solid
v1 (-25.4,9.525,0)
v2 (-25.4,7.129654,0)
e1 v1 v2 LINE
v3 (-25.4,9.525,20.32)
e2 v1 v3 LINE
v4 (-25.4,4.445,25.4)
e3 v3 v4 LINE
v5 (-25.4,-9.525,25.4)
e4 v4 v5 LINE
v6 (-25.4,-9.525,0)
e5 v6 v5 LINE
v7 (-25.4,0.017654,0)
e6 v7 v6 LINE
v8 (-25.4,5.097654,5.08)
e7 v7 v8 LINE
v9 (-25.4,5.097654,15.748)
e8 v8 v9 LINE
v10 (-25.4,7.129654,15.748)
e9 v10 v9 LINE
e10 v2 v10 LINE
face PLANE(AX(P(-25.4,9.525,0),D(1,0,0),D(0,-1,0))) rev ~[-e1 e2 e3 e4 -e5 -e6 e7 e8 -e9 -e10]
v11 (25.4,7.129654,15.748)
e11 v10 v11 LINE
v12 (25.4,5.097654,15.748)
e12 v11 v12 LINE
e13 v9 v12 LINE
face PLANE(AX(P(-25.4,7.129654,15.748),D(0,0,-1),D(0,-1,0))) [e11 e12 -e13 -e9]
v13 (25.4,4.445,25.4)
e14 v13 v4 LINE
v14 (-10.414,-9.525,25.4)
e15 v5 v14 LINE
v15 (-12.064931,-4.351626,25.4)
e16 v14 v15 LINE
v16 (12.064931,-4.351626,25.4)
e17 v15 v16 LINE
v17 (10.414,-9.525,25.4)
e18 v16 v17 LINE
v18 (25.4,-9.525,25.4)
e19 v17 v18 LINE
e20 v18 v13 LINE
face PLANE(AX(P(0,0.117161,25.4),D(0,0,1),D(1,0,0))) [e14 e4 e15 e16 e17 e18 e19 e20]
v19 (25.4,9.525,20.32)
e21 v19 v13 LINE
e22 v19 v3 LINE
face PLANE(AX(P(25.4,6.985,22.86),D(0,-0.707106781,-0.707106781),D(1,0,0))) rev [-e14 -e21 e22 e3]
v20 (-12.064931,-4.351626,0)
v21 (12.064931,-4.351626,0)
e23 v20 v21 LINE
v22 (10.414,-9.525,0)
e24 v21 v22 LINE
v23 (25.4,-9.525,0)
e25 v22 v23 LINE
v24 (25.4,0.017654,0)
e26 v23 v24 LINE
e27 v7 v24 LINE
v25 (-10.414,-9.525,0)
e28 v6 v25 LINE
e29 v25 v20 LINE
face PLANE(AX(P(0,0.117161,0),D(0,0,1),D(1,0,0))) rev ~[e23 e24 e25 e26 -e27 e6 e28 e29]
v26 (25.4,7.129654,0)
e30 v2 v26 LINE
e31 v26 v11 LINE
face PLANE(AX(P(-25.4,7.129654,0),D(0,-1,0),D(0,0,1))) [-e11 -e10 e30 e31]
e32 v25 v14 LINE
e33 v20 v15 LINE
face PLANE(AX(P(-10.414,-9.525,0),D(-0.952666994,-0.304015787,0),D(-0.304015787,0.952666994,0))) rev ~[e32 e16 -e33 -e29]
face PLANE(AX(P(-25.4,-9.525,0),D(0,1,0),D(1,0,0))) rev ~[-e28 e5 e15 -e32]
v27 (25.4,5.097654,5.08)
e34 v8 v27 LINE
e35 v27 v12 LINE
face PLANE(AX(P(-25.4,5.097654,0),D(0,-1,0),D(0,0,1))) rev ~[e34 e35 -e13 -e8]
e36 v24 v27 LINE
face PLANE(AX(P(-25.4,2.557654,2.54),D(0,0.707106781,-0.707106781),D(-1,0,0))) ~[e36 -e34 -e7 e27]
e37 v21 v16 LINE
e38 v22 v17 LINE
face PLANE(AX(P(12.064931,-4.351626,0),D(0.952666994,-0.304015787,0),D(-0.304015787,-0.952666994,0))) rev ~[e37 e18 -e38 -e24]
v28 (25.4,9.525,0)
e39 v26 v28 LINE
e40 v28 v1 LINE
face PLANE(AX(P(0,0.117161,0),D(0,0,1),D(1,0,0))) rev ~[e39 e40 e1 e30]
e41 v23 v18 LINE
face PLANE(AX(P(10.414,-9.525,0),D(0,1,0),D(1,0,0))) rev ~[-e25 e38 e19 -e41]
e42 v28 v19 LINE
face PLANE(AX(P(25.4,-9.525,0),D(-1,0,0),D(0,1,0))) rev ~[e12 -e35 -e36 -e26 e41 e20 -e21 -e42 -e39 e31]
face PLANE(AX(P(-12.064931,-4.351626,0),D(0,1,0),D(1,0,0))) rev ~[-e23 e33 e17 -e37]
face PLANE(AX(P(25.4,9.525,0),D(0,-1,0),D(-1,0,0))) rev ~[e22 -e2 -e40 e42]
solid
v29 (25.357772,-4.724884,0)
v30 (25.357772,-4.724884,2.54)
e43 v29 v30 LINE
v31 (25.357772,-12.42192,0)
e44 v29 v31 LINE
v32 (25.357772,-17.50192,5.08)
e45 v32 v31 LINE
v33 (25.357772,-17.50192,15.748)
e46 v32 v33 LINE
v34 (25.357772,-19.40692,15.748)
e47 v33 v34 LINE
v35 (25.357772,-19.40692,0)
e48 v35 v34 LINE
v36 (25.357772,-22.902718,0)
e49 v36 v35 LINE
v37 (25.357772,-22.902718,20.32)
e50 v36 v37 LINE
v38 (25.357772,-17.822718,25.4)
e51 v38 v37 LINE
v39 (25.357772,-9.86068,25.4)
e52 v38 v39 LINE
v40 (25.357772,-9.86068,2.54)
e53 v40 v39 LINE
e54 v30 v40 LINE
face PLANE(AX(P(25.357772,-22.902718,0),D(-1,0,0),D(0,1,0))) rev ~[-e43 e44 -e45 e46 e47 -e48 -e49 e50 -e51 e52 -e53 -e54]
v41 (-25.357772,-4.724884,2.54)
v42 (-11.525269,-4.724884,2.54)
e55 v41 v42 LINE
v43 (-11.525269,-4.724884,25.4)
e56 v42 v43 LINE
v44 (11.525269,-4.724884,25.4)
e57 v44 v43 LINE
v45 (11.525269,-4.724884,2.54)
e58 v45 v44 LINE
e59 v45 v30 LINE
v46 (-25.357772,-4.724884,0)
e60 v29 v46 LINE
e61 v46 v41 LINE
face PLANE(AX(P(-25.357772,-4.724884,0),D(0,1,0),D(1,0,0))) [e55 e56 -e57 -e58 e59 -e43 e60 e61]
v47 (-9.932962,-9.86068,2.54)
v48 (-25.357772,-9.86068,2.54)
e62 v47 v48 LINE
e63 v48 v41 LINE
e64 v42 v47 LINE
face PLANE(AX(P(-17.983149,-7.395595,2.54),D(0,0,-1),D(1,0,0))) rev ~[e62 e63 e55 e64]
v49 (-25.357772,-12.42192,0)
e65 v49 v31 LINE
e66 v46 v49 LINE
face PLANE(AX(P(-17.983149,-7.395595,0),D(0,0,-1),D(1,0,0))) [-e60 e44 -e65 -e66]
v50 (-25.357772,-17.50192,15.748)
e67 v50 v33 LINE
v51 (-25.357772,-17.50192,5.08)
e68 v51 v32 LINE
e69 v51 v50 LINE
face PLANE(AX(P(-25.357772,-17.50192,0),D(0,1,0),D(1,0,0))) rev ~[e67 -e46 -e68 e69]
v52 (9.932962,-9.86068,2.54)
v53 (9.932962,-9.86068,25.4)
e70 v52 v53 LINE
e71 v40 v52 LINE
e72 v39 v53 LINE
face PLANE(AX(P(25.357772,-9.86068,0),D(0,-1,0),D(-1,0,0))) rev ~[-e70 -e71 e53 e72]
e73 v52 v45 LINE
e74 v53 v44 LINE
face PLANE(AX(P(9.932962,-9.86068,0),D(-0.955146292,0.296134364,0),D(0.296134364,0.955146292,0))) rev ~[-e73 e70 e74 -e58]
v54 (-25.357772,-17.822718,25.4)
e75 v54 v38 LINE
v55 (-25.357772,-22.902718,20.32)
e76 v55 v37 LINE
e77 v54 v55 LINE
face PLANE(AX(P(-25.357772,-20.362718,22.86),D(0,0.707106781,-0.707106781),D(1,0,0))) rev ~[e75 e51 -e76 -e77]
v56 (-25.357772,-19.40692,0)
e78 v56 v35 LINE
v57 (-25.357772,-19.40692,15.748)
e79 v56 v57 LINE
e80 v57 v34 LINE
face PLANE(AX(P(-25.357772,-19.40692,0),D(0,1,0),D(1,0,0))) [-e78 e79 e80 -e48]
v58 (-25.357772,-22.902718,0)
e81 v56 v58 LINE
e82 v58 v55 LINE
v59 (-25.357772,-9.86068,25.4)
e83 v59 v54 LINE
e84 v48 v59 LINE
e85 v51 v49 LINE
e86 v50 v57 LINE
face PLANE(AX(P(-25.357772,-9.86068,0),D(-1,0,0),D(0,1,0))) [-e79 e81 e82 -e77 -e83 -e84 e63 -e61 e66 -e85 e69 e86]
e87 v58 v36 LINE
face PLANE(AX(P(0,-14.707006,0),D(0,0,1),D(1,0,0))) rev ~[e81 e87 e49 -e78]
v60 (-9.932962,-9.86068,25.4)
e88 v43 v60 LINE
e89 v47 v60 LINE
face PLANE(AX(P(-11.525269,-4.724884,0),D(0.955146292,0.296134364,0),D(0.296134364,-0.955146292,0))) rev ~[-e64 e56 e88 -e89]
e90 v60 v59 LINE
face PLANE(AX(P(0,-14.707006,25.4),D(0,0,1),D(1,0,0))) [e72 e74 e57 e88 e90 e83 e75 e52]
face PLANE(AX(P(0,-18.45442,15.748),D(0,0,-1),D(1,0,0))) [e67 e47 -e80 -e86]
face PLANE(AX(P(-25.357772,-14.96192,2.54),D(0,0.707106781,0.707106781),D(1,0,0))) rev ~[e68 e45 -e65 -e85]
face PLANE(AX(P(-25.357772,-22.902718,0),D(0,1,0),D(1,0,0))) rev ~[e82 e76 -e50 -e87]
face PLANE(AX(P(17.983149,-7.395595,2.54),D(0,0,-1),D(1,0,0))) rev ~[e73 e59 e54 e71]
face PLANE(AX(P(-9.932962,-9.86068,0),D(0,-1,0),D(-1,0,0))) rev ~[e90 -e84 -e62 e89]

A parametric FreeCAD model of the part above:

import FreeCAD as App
import Part
import Sketcher
from FreeCAD import Vector
Q = App.Units.Quantity


def edges_at(feature, points):
    """Names of the edges that pass closest to the given points."""
    edges = feature.Shape.Edges
    near = lambda p: min(range(len(edges)), key=lambda i: edges[i].distToShape(Part.Vertex(*p))[0])
    return sorted({f"Edge{near(p) + 1}" for p in points})


def add_polygon(sketch, points):
    """Adds a closed chain of lines whose ends are joined by coincident constraints."""
    first, n = sketch.GeometryCount, len(points)
    for a, b in zip(points, points[1:] + points[:1]):
        sketch.addGeometry(Part.LineSegment(App.Vector(*a, 0), App.Vector(*b, 0)), False)
    for i in range(n):
        sketch.addConstraint(Sketcher.Constraint("Coincident", first + i, 2, first + (i + 1) % n, 1))

doc = App.newDocument("Part")
body = doc.addObject("PartDesign::Body", "Body")

sketch1 = doc.addObject("Sketcher::SketchObject", "Sketch")
body.addObject(sketch1)
sketch1.AttachmentSupport = (doc.XY_Plane, [""])
sketch1.MapMode = "FlatFace"
add_polygon(sketch1, [(25, -10), (25, 10), (-25, 10), (-25, -10), (-10, -10), (-12, -4), (12, -4), (10, -10)])
sketch1.addConstraint([
    Sketcher.Constraint("Vertical", 0),
    Sketcher.Constraint("Horizontal", 1),
    Sketcher.Constraint("Vertical", 2),
    Sketcher.Constraint("Horizontal", 3),
    Sketcher.Constraint("Horizontal", 5),
    Sketcher.Constraint("Horizontal", 7),
    Sketcher.Constraint("Symmetric", 0, 2, 2, 2, -1, 1),
    Sketcher.Constraint("Symmetric", 3, 2, 6, 2, -2),
    Sketcher.Constraint("Equal", 4, 6),
    Sketcher.Constraint("DistanceX", 1, 2, 1, 1, Q("2 in")),
    Sketcher.Constraint("DistanceX", 3, 1, 3, 2, Q("0.59 in")),
    Sketcher.Constraint("DistanceY", 0, 1, 0, 2, Q("0.75 in")),
    Sketcher.Constraint("DistanceX", 5, 1, 5, 2, Q("24.129862 mm")),
    Sketcher.Constraint("Distance", 4, Q("5.430412 mm")),
])
pad1 = doc.addObject("PartDesign::Pad", "Pad")
body.addObject(pad1)
pad1.Profile = sketch1
pad1.Length = Q("1 in")

sketch2 = doc.addObject("Sketcher::SketchObject", "Sketch001")
body.addObject(sketch2)
sketch2.AttachmentSupport = (doc.YZ_Plane, [""])
sketch2.MapMode = "FlatFace"
sketch2.AttachmentOffset = App.Placement(Vector(0, 0, -1 * 25.4), App.Rotation())
add_polygon(sketch2, [(7.1, 15.7), (7.1, 0), (5.1, 0), (5.1, 15.7)])
sketch2.addConstraint([
    Sketcher.Constraint("Vertical", 0),
    Sketcher.Constraint("Horizontal", 1),
    Sketcher.Constraint("Vertical", 2),
    Sketcher.Constraint("Horizontal", 3),
    Sketcher.Constraint("PointOnObject", 0, 2, -1),
    Sketcher.Constraint("DistanceX", 1, 2, 1, 1, Q("0.08 in")),
    Sketcher.Constraint("DistanceY", 0, 2, 0, 1, Q("0.62 in")),
    Sketcher.Constraint("DistanceX", -1, 1, 0, 2, Q("7.129654 mm")),
])
pocket1 = doc.addObject("PartDesign::Pocket", "Pocket")
body.addObject(pocket1)
pocket1.Profile = sketch2
pocket1.Length = Q("2.69 in")
pocket1.Reversed = True
doc.recompute()

chamfer = doc.addObject("PartDesign::Chamfer", "Chamfer")
body.addObject(chamfer)
chamfer.Base = (pocket1, edges_at(pocket1, [(0, 5.098, 0), (0, 9.525, 25.4)]))
chamfer.Size = Q("0.2 in")
body2 = doc.addObject("PartDesign::Body", "Body001")

sketch3 = doc.addObject("Sketcher::SketchObject", "Sketch002")
body2.addObject(sketch3)
sketch3.AttachmentSupport = (doc.getObject("XY_Plane001"), [""])
sketch3.MapMode = "FlatFace"
add_polygon(sketch3, [(-10, -10), (-25, -10), (-25, -23), (25, -23), (25, -10), (10, -10), (12, -5), (-12, -5)])
sketch3.addConstraint([
    Sketcher.Constraint("Horizontal", 0),
    Sketcher.Constraint("Vertical", 1),
    Sketcher.Constraint("Horizontal", 2),
    Sketcher.Constraint("Vertical", 3),
    Sketcher.Constraint("Horizontal", 4),
    Sketcher.Constraint("Horizontal", 6),
    Sketcher.Constraint("Symmetric", 0, 2, 3, 2, -2),
    Sketcher.Constraint("Equal", 0, 4),
    Sketcher.Constraint("Equal", 5, 7),
    Sketcher.Constraint("DistanceX", 0, 2, 0, 1, Q("15.424809 mm")),
    Sketcher.Constraint("DistanceX", 2, 1, 2, 2, Q("50.715543 mm")),
    Sketcher.Constraint("DistanceX", 6, 2, 6, 1, Q("23.050538 mm")),
    Sketcher.Constraint("DistanceY", 1, 2, 1, 1, Q("13.042037 mm")),
    Sketcher.Constraint("DistanceY", 0, 2, -1, 1, Q("9.86068 mm")),
    Sketcher.Constraint("Distance", 5, Q("5.376974 mm")),
])
pad2 = doc.addObject("PartDesign::Pad", "Pad001")
body2.addObject(pad2)
pad2.Profile = sketch3
pad2.Length = Q("1 in")

sketch4 = doc.addObject("Sketcher::SketchObject", "Sketch003")
body2.addObject(sketch4)
sketch4.AttachmentSupport = (doc.getObject("XY_Plane001"), [""])
sketch4.MapMode = "FlatFace"
add_polygon(sketch4, [(-25.4, -19.4), (-25.4, -17.5), (25.4, -17.5), (25.4, -19.4)])
sketch4.addConstraint([
    Sketcher.Constraint("Vertical", 0),
    Sketcher.Constraint("Horizontal", 1),
    Sketcher.Constraint("Vertical", 2),
    Sketcher.Constraint("Horizontal", 3),
    Sketcher.Constraint("DistanceY", 0, 1, 0, 2, Q("0.075 in")),
    Sketcher.Constraint("DistanceX", 1, 1, 1, 2, Q("50.715543 mm")),
    Sketcher.Constraint("DistanceX", 0, 2, -1, 1, Q("25.357772 mm")),
    Sketcher.Constraint("DistanceY", 0, 2, -1, 1, Q("17.50192 mm")),
])
pocket2 = doc.addObject("PartDesign::Pocket", "Pocket001")
body2.addObject(pocket2)
pocket2.Profile = sketch4
pocket2.Length = Q("0.62 in")
pocket2.Reversed = True

sketch5 = doc.addObject("Sketcher::SketchObject", "Sketch004")
body2.addObject(sketch5)
sketch5.AttachmentSupport = (doc.getObject("XY_Plane001"), [""])
sketch5.MapMode = "FlatFace"
add_polygon(sketch5, [(-10, -10), (-25, -10), (-25, -5), (-12, -5)])
add_polygon(sketch5, [(25, -10), (10, -10), (12, -5), (25, -5)])
sketch5.addConstraint([
    Sketcher.Constraint("Horizontal", 0),
    Sketcher.Constraint("Vertical", 1),
    Sketcher.Constraint("Horizontal", 2),
    Sketcher.Constraint("Horizontal", 4),
    Sketcher.Constraint("Horizontal", 6),
    Sketcher.Constraint("Vertical", 7),
    Sketcher.Constraint("Symmetric", 3, 2, 4, 2, -2),
    Sketcher.Constraint("Symmetric", 2, 2, 5, 2, -2),
    Sketcher.Constraint("Equal", 0, 4),
    Sketcher.Constraint("DistanceX", 0, 2, 0, 1, Q("15.424809 mm")),
    Sketcher.Constraint("DistanceX", 2, 1, 2, 2, Q("13.832503 mm")),
    Sketcher.Constraint("DistanceY", 1, 1, 1, 2, Q("5.135796 mm")),
    Sketcher.Constraint("DistanceX", 0, 2, -1, 1, Q("25.357772 mm")),
    Sketcher.Constraint("DistanceY", 0, 2, -1, 1, Q("9.86068 mm")),
])
pad3 = doc.addObject("PartDesign::Pad", "Pad002")
body2.addObject(pad3)
pad3.Profile = sketch5
pad3.Length = Q("0.1 in")
doc.recompute()

chamfer2 = doc.addObject("PartDesign::Chamfer", "Chamfer001")
body2.addObject(chamfer2)
chamfer2.Base = (pad3, edges_at(pad3, [(0, -17.502, 0), (0, -22.903, 25.4)]))
chamfer2.Size = Q("0.2 in")

doc.recompute()
